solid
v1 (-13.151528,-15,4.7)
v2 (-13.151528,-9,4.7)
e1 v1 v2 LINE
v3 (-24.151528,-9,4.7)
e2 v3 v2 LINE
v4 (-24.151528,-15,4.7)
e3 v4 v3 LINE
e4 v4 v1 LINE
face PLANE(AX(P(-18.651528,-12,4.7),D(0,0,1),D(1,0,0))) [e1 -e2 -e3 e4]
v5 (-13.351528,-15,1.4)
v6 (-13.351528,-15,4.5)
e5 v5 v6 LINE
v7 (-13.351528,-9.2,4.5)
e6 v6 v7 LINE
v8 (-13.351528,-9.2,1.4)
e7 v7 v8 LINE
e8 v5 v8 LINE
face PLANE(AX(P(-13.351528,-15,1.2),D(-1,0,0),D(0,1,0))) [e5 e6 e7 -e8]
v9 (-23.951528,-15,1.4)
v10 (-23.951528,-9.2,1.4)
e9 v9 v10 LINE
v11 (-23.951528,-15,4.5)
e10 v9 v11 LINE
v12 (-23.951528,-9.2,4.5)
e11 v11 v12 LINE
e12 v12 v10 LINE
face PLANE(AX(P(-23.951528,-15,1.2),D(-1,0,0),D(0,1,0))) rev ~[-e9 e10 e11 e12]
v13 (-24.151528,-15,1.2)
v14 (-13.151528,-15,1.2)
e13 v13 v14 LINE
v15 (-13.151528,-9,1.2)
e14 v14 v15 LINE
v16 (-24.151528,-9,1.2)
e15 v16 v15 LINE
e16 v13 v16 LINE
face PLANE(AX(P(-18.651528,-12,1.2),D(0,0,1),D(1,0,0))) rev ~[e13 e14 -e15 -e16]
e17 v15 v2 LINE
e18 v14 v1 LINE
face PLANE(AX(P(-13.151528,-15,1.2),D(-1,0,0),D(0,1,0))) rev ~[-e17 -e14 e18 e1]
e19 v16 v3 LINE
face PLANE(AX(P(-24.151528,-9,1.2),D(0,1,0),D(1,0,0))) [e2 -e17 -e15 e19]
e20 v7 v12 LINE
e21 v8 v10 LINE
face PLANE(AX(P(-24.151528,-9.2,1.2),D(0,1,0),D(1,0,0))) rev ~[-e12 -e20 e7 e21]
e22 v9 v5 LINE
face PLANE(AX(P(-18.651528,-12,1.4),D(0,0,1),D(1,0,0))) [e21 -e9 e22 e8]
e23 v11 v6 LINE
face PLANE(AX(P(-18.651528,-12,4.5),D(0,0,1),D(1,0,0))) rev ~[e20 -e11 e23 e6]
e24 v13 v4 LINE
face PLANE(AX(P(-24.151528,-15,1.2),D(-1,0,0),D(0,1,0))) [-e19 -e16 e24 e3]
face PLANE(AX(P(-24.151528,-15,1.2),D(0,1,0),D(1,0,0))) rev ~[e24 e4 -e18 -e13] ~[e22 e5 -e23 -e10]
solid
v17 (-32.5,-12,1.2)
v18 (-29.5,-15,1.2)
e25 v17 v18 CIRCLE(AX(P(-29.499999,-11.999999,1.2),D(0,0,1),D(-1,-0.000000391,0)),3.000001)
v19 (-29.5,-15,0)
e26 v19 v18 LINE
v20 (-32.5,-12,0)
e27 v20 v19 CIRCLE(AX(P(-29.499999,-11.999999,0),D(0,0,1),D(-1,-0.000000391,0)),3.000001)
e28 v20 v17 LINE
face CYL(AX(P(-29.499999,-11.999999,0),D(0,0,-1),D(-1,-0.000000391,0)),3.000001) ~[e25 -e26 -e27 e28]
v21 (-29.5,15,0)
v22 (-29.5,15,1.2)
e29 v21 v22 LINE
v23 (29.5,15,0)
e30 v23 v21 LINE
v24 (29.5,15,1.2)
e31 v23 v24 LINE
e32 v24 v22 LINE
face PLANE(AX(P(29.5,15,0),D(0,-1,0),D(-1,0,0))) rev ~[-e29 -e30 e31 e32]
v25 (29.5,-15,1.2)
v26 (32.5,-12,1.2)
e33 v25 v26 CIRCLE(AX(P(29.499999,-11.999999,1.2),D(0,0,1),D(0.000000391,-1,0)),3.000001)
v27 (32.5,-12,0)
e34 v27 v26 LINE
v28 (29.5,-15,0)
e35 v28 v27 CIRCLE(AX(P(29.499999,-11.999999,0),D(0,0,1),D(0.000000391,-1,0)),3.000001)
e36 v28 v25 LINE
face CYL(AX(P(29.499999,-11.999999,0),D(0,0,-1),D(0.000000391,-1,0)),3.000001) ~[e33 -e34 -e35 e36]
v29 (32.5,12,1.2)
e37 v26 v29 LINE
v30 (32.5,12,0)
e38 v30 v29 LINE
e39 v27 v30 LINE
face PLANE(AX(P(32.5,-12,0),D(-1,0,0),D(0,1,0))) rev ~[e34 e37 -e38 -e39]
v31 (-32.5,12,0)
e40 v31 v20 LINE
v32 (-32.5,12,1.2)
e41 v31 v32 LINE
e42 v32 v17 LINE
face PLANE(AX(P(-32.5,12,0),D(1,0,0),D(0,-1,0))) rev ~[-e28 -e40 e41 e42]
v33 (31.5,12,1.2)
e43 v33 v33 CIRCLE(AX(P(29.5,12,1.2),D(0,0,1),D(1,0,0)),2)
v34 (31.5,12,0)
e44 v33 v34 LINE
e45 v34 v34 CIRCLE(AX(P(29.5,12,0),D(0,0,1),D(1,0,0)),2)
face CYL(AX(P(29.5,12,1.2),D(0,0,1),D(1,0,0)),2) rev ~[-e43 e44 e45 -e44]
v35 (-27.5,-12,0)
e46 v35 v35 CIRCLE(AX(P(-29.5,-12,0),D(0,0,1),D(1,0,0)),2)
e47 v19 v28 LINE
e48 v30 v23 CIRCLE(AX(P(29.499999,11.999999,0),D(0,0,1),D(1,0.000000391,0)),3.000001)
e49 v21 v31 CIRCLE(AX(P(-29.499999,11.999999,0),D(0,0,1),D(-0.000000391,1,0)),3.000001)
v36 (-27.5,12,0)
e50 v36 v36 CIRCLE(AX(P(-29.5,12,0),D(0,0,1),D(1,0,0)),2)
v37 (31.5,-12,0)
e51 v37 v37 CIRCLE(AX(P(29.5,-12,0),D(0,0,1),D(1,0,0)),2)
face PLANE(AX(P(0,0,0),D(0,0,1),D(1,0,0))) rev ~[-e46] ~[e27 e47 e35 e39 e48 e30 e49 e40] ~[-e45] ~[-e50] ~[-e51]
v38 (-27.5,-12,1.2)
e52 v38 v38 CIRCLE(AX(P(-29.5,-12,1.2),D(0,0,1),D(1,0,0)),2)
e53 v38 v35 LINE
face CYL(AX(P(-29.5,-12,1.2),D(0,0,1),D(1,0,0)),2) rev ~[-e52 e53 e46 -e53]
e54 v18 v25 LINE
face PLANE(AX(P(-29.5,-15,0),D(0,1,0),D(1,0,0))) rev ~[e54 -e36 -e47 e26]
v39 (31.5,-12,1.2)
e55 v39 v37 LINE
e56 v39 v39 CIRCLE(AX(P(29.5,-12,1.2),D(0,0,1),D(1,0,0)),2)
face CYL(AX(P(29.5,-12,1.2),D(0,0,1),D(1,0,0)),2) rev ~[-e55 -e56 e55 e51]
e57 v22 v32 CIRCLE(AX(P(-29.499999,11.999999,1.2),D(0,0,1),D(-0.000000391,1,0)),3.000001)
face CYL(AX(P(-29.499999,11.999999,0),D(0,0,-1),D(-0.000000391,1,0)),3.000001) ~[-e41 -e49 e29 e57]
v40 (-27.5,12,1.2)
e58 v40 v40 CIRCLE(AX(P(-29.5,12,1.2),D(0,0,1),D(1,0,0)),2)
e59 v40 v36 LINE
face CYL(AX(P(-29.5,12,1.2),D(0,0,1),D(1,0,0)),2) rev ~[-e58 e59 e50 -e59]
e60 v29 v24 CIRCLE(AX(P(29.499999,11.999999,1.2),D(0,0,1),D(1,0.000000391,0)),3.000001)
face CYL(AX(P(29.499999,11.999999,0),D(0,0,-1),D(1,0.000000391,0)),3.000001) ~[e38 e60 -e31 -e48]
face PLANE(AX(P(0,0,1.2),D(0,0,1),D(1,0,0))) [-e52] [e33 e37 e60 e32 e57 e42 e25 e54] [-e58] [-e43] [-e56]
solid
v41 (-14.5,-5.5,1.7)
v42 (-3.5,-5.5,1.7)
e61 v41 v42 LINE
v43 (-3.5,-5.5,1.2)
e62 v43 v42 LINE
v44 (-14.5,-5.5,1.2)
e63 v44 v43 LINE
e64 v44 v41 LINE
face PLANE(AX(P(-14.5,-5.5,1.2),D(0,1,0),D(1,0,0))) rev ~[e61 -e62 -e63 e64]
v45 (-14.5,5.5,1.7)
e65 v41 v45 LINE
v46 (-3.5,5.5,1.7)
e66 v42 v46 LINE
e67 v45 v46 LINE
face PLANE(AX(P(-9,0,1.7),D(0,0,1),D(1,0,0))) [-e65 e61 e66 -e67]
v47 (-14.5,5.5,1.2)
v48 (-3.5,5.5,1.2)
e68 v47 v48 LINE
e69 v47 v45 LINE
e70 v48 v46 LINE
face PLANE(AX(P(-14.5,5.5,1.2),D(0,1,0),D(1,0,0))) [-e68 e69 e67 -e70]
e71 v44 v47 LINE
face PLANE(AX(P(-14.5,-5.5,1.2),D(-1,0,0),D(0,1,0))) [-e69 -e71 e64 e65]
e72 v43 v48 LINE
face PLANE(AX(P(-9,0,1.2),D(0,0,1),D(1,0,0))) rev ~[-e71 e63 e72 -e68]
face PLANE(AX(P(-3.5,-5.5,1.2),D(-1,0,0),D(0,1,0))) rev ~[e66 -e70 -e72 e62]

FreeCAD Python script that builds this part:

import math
import FreeCAD as App
import Part
import Sketcher


def faces_at(feature, points):
    """Names of the faces that lie closest to the given points."""
    faces = feature.Shape.Faces
    near = lambda p: min(range(len(faces)), key=lambda i: faces[i].distToShape(Part.Vertex(*p))[0])
    return sorted({f"Face{near(p) + 1}" for p in points})

doc = App.newDocument("Part")
body = doc.addObject("PartDesign::Body", "Body")

sketch1 = body.newObject("Sketcher::SketchObject", "Sketch")
sketch1.AttachmentSupport = (doc.getObject("XY_Plane"), [""])
sketch1.MapMode = "FlatFace"
sketch1.addGeometry([
    Part.ArcOfCircle(Part.Circle(App.Vector(29.5, 12, 0), App.Vector(0, 0, 1), 3), math.radians(0), math.radians(90)),
    Part.LineSegment(App.Vector(29.5, 15, 0), App.Vector(-29.5, 15, 0)),
    Part.ArcOfCircle(Part.Circle(App.Vector(-29.5, 12, 0), App.Vector(0, 0, 1), 3), math.radians(90), math.radians(180)),
    Part.LineSegment(App.Vector(-32.5, 12, 0), App.Vector(-32.5, -12, 0)),
    Part.ArcOfCircle(Part.Circle(App.Vector(-29.5, -12, 0), App.Vector(0, 0, 1), 3), math.radians(-180), math.radians(-90)),
    Part.LineSegment(App.Vector(-29.5, -15, 0), App.Vector(29.5, -15, 0)),
    Part.ArcOfCircle(Part.Circle(App.Vector(29.5, -12, 0), App.Vector(0, 0, 1), 3), math.radians(-90), math.radians(0)),
    Part.LineSegment(App.Vector(32.5, -12, 0), App.Vector(32.5, 12, 0)),
], False)
sketch1.addConstraint([
    Sketcher.Constraint("Tangent", 0, 2, 1, 1),
    Sketcher.Constraint("Tangent", 1, 2, 2, 1),
    Sketcher.Constraint("Tangent", 2, 2, 3, 1),
    Sketcher.Constraint("Tangent", 3, 2, 4, 1),
    Sketcher.Constraint("Tangent", 4, 2, 5, 1),
    Sketcher.Constraint("Tangent", 5, 2, 6, 1),
    Sketcher.Constraint("Tangent", 6, 2, 7, 1),
    Sketcher.Constraint("Tangent", 7, 2, 0, 1),
    Sketcher.Constraint("Horizontal", 1),
    Sketcher.Constraint("Vertical", 3),
    Sketcher.Constraint("Horizontal", 5),
    Sketcher.Constraint("Vertical", 7),
    Sketcher.Constraint("Equal", 0, 2),
    Sketcher.Constraint("Equal", 2, 4),
    Sketcher.Constraint("Equal", 4, 6),
    Sketcher.Constraint("Symmetric", 0, 3, 4, 3, -1, 1),
    Sketcher.Constraint("Radius", 0, 3.000001),
    Sketcher.Constraint("DistanceX", 1, 2, 1, 1, 59.0),
    Sketcher.Constraint("DistanceY", 3, 2, 3, 1, 24.0),
])
pad1 = body.newObject("PartDesign::Pad", "Pad")
pad1.Profile = sketch1
pad1.Length = 1.2

sketch2 = body.newObject("Sketcher::SketchObject", "Sketch001")
sketch2.AttachmentSupport = (doc.getObject("XY_Plane"), [""])
sketch2.MapMode = "FlatFace"
sketch2.AttachmentOffset = App.Placement(App.Vector(0, 0, 1.2), App.Rotation())
sketch2.addGeometry([
    Part.Circle(App.Vector(-29.5, 12, 0), App.Vector(0, 0, 1), 2),
    Part.Circle(App.Vector(29.5, 12, 0), App.Vector(0, 0, 1), 2),
    Part.Circle(App.Vector(-29.5, -12, 0), App.Vector(0, 0, 1), 2),
    Part.Circle(App.Vector(29.5, -12, 0), App.Vector(0, 0, 1), 2),
], False)
sketch2.addConstraint([
    Sketcher.Constraint("Equal", 0, 1),
    Sketcher.Constraint("Equal", 1, 2),
    Sketcher.Constraint("Equal", 2, 3),
    Sketcher.Constraint("Symmetric", 1, 3, 2, 3, -1, 1),
    Sketcher.Constraint("Symmetric", 0, 3, 3, 3, -1, 1),
    Sketcher.Constraint("Symmetric", 0, 3, 1, 3, -2),
    Sketcher.Constraint("Diameter", 0, 4.0),
    Sketcher.Constraint("DistanceY", -1, 1, 0, 3, 12.0),
    Sketcher.Constraint("DistanceX", 0, 3, 1, 3, 59.0),
])
pocket1 = body.newObject("PartDesign::Pocket", "Pocket")
pocket1.Profile = sketch2
pocket1.Length = 2
body2 = doc.addObject("PartDesign::Body", "Body001")

sketch3 = body2.newObject("Sketcher::SketchObject", "Sketch002")
sketch3.AttachmentSupport = (doc.getObject("XY_Plane001"), [""])
sketch3.MapMode = "FlatFace"
sketch3.AttachmentOffset = App.Placement(App.Vector(0, 0, 1.2), App.Rotation())
sketch3.addGeometry([
    Part.LineSegment(App.Vector(-14, 6, 0), App.Vector(-14, -6, 0)),
    Part.LineSegment(App.Vector(-14, -6, 0), App.Vector(-4, -6, 0)),
    Part.LineSegment(App.Vector(-4, -6, 0), App.Vector(-4, 6, 0)),
    Part.LineSegment(App.Vector(-4, 6, 0), App.Vector(-14, 6, 0)),
], False)
sketch3.addConstraint([
    Sketcher.Constraint("Coincident", 0, 2, 1, 1),
    Sketcher.Constraint("Coincident", 1, 2, 2, 1),
    Sketcher.Constraint("Coincident", 2, 2, 3, 1),
    Sketcher.Constraint("Coincident", 3, 2, 0, 1),
    Sketcher.Constraint("Vertical", 0),
    Sketcher.Constraint("Horizontal", 1),
    Sketcher.Constraint("Vertical", 2),
    Sketcher.Constraint("Horizontal", 3),
    Sketcher.Constraint("Equal", 3, 0),
    Sketcher.Constraint("DistanceX", 1, 1, 1, 2, 11.0),
    Sketcher.Constraint("DistanceX", 0, 2, -1, 1, 14.5),
    Sketcher.Constraint("DistanceY", 0, 2, -1, 1, 5.5),
])
pad2 = body2.newObject("PartDesign::Pad", "Pad001")
pad2.Profile = sketch3
pad2.Length = 0.5
body3 = doc.addObject("PartDesign::Body", "Body002")

sketch4 = body3.newObject("Sketcher::SketchObject", "Sketch003")
sketch4.AttachmentSupport = (doc.getObject("XY_Plane002"), [""])
sketch4.MapMode = "FlatFace"
sketch4.AttachmentOffset = App.Placement(App.Vector(0, 0, 1.2), App.Rotation())
sketch4.addGeometry([
    Part.LineSegment(App.Vector(-24, -9, 0), App.Vector(-24, -15, 0)),
    Part.LineSegment(App.Vector(-24, -15, 0), App.Vector(-13, -15, 0)),
    Part.LineSegment(App.Vector(-13, -15, 0), App.Vector(-13, -9, 0)),
    Part.LineSegment(App.Vector(-13, -9, 0), App.Vector(-24, -9, 0)),
], False)
sketch4.addConstraint([
    Sketcher.Constraint("Coincident", 0, 2, 1, 1),
    Sketcher.Constraint("Coincident", 1, 2, 2, 1),
    Sketcher.Constraint("Coincident", 2, 2, 3, 1),
    Sketcher.Constraint("Coincident", 3, 2, 0, 1),
    Sketcher.Constraint("Vertical", 0),
    Sketcher.Constraint("Horizontal", 1),
    Sketcher.Constraint("Vertical", 2),
    Sketcher.Constraint("Horizontal", 3),
    Sketcher.Constraint("DistanceX", 1, 1, 1, 2, 11.0),
    Sketcher.Constraint("DistanceY", 0, 2, 0, 1, 6.0),
    Sketcher.Constraint("DistanceY", 0, 2, -1, 1, 15.0),
    Sketcher.Constraint("DistanceX", 1, 2, -1, 1, 13.151528),
])
pad3 = body3.newObject("PartDesign::Pad", "Pad002")
pad3.Profile = sketch4
pad3.Length = 3.5
doc.recompute()

thickness = body3.newObject("PartDesign::Thickness", "Thickness")
thickness.Base = (pad3, faces_at(pad3, [(-18.652, -15, 2.95)]))
thickness.Value = 0.2
thickness.Reversed = True
thickness.Join = "Arc"

doc.recompute()
